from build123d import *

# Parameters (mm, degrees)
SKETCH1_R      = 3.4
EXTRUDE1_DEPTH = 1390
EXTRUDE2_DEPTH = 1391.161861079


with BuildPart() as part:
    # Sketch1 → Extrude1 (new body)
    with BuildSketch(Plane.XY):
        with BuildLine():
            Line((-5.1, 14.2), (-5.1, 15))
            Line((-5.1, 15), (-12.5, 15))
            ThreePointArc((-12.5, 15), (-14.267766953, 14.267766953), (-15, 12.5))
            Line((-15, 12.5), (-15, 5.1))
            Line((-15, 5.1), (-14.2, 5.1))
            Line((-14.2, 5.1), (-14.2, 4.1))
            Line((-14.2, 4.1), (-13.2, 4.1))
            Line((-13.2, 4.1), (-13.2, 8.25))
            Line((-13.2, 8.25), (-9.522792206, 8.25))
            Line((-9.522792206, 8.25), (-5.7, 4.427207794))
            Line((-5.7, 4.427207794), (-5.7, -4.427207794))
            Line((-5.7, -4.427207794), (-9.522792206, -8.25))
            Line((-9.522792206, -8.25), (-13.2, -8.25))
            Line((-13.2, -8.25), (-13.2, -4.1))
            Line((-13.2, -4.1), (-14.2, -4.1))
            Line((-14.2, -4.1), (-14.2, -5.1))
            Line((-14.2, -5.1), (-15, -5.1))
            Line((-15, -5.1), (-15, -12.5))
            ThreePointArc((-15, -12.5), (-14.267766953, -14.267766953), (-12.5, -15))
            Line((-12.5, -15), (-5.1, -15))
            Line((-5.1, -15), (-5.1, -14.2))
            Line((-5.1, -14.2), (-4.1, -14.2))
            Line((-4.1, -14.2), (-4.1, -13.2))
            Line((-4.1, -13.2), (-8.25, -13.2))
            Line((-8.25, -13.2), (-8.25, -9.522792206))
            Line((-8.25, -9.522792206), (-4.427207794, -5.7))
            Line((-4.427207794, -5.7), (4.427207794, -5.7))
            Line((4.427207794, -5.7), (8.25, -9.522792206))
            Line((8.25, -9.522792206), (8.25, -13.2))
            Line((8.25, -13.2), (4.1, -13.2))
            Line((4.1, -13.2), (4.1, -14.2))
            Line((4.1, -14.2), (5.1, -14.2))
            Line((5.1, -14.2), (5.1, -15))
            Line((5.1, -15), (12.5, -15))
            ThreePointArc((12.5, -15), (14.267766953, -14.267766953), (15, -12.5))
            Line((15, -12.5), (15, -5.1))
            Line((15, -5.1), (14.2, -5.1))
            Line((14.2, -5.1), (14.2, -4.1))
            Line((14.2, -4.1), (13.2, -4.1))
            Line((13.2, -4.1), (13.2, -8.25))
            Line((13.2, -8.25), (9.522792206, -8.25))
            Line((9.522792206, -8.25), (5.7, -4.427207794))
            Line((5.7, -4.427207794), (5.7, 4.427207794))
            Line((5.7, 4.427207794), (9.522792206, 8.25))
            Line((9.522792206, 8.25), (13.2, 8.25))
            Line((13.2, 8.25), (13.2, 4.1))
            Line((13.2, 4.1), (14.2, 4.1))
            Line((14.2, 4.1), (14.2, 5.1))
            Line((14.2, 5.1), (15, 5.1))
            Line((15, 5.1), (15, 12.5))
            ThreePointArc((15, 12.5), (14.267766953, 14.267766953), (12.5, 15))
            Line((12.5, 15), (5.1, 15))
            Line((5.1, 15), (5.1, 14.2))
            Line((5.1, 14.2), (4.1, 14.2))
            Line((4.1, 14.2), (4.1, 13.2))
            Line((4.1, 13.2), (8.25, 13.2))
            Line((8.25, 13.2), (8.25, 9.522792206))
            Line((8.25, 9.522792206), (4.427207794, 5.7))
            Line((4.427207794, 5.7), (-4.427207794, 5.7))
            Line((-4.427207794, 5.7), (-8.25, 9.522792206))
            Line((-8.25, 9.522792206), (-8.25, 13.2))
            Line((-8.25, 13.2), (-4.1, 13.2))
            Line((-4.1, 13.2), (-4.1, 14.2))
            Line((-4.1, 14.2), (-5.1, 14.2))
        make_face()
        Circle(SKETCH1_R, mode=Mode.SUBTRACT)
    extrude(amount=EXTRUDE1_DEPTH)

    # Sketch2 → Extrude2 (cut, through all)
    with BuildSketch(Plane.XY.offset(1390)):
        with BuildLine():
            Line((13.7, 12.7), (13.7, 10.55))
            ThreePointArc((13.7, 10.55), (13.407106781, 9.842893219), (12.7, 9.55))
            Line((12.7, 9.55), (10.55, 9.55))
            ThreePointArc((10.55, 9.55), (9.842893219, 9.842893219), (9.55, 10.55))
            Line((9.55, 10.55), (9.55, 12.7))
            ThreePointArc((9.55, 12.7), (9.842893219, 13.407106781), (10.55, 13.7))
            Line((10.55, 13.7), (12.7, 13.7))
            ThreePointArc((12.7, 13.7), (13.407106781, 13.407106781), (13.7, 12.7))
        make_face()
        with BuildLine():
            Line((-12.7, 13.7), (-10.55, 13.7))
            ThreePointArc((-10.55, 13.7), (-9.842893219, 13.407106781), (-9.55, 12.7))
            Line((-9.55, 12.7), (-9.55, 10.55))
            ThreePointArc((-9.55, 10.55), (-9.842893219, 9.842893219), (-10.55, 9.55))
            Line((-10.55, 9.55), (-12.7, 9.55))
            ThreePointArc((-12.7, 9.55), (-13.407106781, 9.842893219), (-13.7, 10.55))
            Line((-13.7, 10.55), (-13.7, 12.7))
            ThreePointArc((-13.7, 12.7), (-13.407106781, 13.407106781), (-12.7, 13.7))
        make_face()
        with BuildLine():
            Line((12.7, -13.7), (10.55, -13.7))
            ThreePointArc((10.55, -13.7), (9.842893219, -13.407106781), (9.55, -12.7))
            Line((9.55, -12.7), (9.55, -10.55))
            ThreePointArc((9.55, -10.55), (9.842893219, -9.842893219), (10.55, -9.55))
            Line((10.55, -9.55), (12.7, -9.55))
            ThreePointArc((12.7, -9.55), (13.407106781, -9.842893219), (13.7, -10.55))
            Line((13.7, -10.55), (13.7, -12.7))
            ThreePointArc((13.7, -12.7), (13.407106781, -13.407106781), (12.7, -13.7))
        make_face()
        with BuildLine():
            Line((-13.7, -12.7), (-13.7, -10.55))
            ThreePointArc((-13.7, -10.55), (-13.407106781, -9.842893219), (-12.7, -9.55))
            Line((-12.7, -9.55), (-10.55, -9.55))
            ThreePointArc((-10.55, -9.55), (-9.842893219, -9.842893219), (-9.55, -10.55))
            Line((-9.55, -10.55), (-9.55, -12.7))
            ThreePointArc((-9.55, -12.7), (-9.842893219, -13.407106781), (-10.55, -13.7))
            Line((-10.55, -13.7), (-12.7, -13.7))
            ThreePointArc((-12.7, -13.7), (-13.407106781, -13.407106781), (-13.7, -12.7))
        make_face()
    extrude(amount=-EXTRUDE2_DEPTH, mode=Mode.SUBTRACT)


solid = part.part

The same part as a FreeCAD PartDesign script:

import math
import FreeCAD as App
import Part
import Sketcher
from FreeCAD import Vector

doc = App.newDocument("Part")
body = doc.addObject("PartDesign::Body", "Body")

sketch1 = body.newObject("Sketcher::SketchObject", "Sketch")
sketch1.AttachmentSupport = (doc.getObject("XY_Plane"), [""])
sketch1.MapMode = "FlatFace"
sketch1.addGeometry(Part.LineSegment(Vector(-5.1, 14.2, 0), Vector(-5.1, 15, 0)), False)
sketch1.addGeometry(Part.LineSegment(Vector(-5.1, 15, 0), Vector(-12.5, 15, 0)), False)
sketch1.addGeometry(Part.ArcOfCircle(Part.Circle(Vector(-12.5, 12.5, 0), Vector(0, 0, 1), 2.5), math.radians(90), math.radians(180)), False)
sketch1.addGeometry(Part.LineSegment(Vector(-15, 12.5, 0), Vector(-15, 5.1, 0)), False)
sketch1.addGeometry(Part.LineSegment(Vector(-15, 5.1, 0), Vector(-14.2, 5.1, 0)), False)
sketch1.addGeometry(Part.LineSegment(Vector(-14.2, 5.1, 0), Vector(-14.2, 4.1, 0)), False)
sketch1.addGeometry(Part.LineSegment(Vector(-14.2, 4.1, 0), Vector(-13.2, 4.1, 0)), False)
sketch1.addGeometry(Part.LineSegment(Vector(-13.2, 4.1, 0), Vector(-13.2, 8.2, 0)), False)
sketch1.addGeometry(Part.LineSegment(Vector(-13.2, 8.2, 0), Vector(-9.5, 8.2, 0)), False)
sketch1.addGeometry(Part.LineSegment(Vector(-9.5, 8.2, 0), Vector(-5.7, 4.4, 0)), False)
sketch1.addGeometry(Part.LineSegment(Vector(-5.7, 4.4, 0), Vector(-5.7, -4.4, 0)), False)
sketch1.addGeometry(Part.LineSegment(Vector(-5.7, -4.4, 0), Vector(-9.5, -8.2, 0)), False)
sketch1.addGeometry(Part.LineSegment(Vector(-9.5, -8.2, 0), Vector(-13.2, -8.2, 0)), False)
sketch1.addGeometry(Part.LineSegment(Vector(-13.2, -8.2, 0), Vector(-13.2, -4.1, 0)), False)
sketch1.addGeometry(Part.LineSegment(Vector(-13.2, -4.1, 0), Vector(-14.2, -4.1, 0)), False)
sketch1.addGeometry(Part.LineSegment(Vector(-14.2, -4.1, 0), Vector(-14.2, -5.1, 0)), False)
sketch1.addGeometry(Part.LineSegment(Vector(-14.2, -5.1, 0), Vector(-15, -5.1, 0)), False)
sketch1.addGeometry(Part.LineSegment(Vector(-15, -5.1, 0), Vector(-15, -12.5, 0)), False)
sketch1.addGeometry(Part.ArcOfCircle(Part.Circle(Vector(-12.5, -12.5, 0), Vector(0, 0, 1), 2.5), math.radians(180), math.radians(270)), False)
sketch1.addGeometry(Part.LineSegment(Vector(-12.5, -15, 0), Vector(-5.1, -15, 0)), False)
sketch1.addGeometry(Part.LineSegment(Vector(-5.1, -15, 0), Vector(-5.1, -14.2, 0)), False)
sketch1.addGeometry(Part.LineSegment(Vector(-5.1, -14.2, 0), Vector(-4.1, -14.2, 0)), False)
sketch1.addGeometry(Part.LineSegment(Vector(-4.1, -14.2, 0), Vector(-4.1, -13.2, 0)), False)
sketch1.addGeometry(Part.LineSegment(Vector(-4.1, -13.2, 0), Vector(-8.2, -13.2, 0)), False)
sketch1.addGeometry(Part.LineSegment(Vector(-8.2, -13.2, 0), Vector(-8.2, -9.5, 0)), False)
sketch1.addGeometry(Part.LineSegment(Vector(-8.2, -9.5, 0), Vector(-4.4, -5.7, 0)), False)
sketch1.addGeometry(Part.LineSegment(Vector(-4.4, -5.7, 0), Vector(4.4, -5.7, 0)), False)
sketch1.addGeometry(Part.LineSegment(Vector(4.4, -5.7, 0), Vector(8.2, -9.5, 0)), False)
sketch1.addGeometry(Part.LineSegment(Vector(8.2, -9.5, 0), Vector(8.2, -13.2, 0)), False)
sketch1.addGeometry(Part.LineSegment(Vector(8.2, -13.2, 0), Vector(4.1, -13.2, 0)), False)
sketch1.addGeometry(Part.LineSegment(Vector(4.1, -13.2, 0), Vector(4.1, -14.2, 0)), False)
sketch1.addGeometry(Part.LineSegment(Vector(4.1, -14.2, 0), Vector(5.1, -14.2, 0)), False)
sketch1.addGeometry(Part.LineSegment(Vector(5.1, -14.2, 0), Vector(5.1, -15, 0)), False)
sketch1.addGeometry(Part.LineSegment(Vector(5.1, -15, 0), Vector(12.5, -15, 0)), False)
sketch1.addGeometry(Part.ArcOfCircle(Part.Circle(Vector(12.5, -12.5, 0), Vector(0, 0, 1), 2.5), math.radians(-90), math.radians(0)), False)
sketch1.addGeometry(Part.LineSegment(Vector(15, -12.5, 0), Vector(15, -5.1, 0)), False)
sketch1.addGeometry(Part.LineSegment(Vector(15, -5.1, 0), Vector(14.2, -5.1, 0)), False)
sketch1.addGeometry(Part.LineSegment(Vector(14.2, -5.1, 0), Vector(14.2, -4.1, 0)), False)
sketch1.addGeometry(Part.LineSegment(Vector(14.2, -4.1, 0), Vector(13.2, -4.1, 0)), False)
sketch1.addGeometry(Part.LineSegment(Vector(13.2, -4.1, 0), Vector(13.2, -8.2, 0)), False)
sketch1.addGeometry(Part.LineSegment(Vector(13.2, -8.2, 0), Vector(9.5, -8.2, 0)), False)
sketch1.addGeometry(Part.LineSegment(Vector(9.5, -8.2, 0), Vector(5.7, -4.4, 0)), False)
sketch1.addGeometry(Part.LineSegment(Vector(5.7, -4.4, 0), Vector(5.7, 4.4, 0)), False)
sketch1.addGeometry(Part.LineSegment(Vector(5.7, 4.4, 0), Vector(9.5, 8.2, 0)), False)
sketch1.addGeometry(Part.LineSegment(Vector(9.5, 8.2, 0), Vector(13.2, 8.2, 0)), False)
sketch1.addGeometry(Part.LineSegment(Vector(13.2, 8.2, 0), Vector(13.2, 4.1, 0)), False)
sketch1.addGeometry(Part.LineSegment(Vector(13.2, 4.1, 0), Vector(14.2, 4.1, 0)), False)
sketch1.addGeometry(Part.LineSegment(Vector(14.2, 4.1, 0), Vector(14.2, 5.1, 0)), False)
sketch1.addGeometry(Part.LineSegment(Vector(14.2, 5.1, 0), Vector(15, 5.1, 0)), False)
sketch1.addGeometry(Part.LineSegment(Vector(15, 5.1, 0), Vector(15, 12.5, 0)), False)
sketch1.addGeometry(Part.ArcOfCircle(Part.Circle(Vector(12.5, 12.5, 0), Vector(0, 0, 1), 2.5), math.radians(0), math.radians(90)), False)
sketch1.addGeometry(Part.LineSegment(Vector(12.5, 15, 0), Vector(5.1, 15, 0)), False)
sketch1.addGeometry(Part.LineSegment(Vector(5.1, 15, 0), Vector(5.1, 14.2, 0)), False)
sketch1.addGeometry(Part.LineSegment(Vector(5.1, 14.2, 0), Vector(4.1, 14.2, 0)), False)
sketch1.addGeometry(Part.LineSegment(Vector(4.1, 14.2, 0), Vector(4.1, 13.2, 0)), False)
sketch1.addGeometry(Part.LineSegment(Vector(4.1, 13.2, 0), Vector(8.2, 13.2, 0)), False)
sketch1.addGeometry(Part.LineSegment(Vector(8.2, 13.2, 0), Vector(8.2, 9.5, 0)), False)
sketch1.addGeometry(Part.LineSegment(Vector(8.2, 9.5, 0), Vector(4.4, 5.7, 0)), False)
sketch1.addGeometry(Part.LineSegment(Vector(4.4, 5.7, 0), Vector(-4.4, 5.7, 0)), False)
sketch1.addGeometry(Part.LineSegment(Vector(-4.4, 5.7, 0), Vector(-8.2, 9.5, 0)), False)
sketch1.addGeometry(Part.LineSegment(Vector(-8.2, 9.5, 0), Vector(-8.2, 13.2, 0)), False)
sketch1.addGeometry(Part.LineSegment(Vector(-8.2, 13.2, 0), Vector(-4.1, 13.2, 0)), False)
sketch1.addGeometry(Part.LineSegment(Vector(-4.1, 13.2, 0), Vector(-4.1, 14.2, 0)), False)
sketch1.addGeometry(Part.LineSegment(Vector(-4.1, 14.2, 0), Vector(-5.1, 14.2, 0)), False)
sketch1.addGeometry(Part.Circle(Vector(0, 0, 0), Vector(0, 0, 1), 3.4), False)
sketch1.addConstraint(Sketcher.Constraint("Coincident", 0, 2, 1, 1))
sketch1.addConstraint(Sketcher.Constraint("Tangent", 1, 2, 2, 1))
sketch1.addConstraint(Sketcher.Constraint("Tangent", 2, 2, 3, 1))
sketch1.addConstraint(Sketcher.Constraint("Coincident", 3, 2, 4, 1))
sketch1.addConstraint(Sketcher.Constraint("Coincident", 4, 2, 5, 1))
sketch1.addConstraint(Sketcher.Constraint("Coincident", 5, 2, 6, 1))
sketch1.addConstraint(Sketcher.Constraint("Coincident", 6, 2, 7, 1))
sketch1.addConstraint(Sketcher.Constraint("Coincident", 7, 2, 8, 1))
sketch1.addConstraint(Sketcher.Constraint("Coincident", 8, 2, 9, 1))
sketch1.addConstraint(Sketcher.Constraint("Coincident", 9, 2, 10, 1))
sketch1.addConstraint(Sketcher.Constraint("Coincident", 10, 2, 11, 1))
sketch1.addConstraint(Sketcher.Constraint("Coincident", 11, 2, 12, 1))
sketch1.addConstraint(Sketcher.Constraint("Coincident", 12, 2, 13, 1))
sketch1.addConstraint(Sketcher.Constraint("Coincident", 13, 2, 14, 1))
sketch1.addConstraint(Sketcher.Constraint("Coincident", 14, 2, 15, 1))
sketch1.addConstraint(Sketcher.Constraint("Coincident", 15, 2, 16, 1))
sketch1.addConstraint(Sketcher.Constraint("Coincident", 16, 2, 17, 1))
sketch1.addConstraint(Sketcher.Constraint("Tangent", 17, 2, 18, 1))
sketch1.addConstraint(Sketcher.Constraint("Tangent", 18, 2, 19, 1))
sketch1.addConstraint(Sketcher.Constraint("Coincident", 19, 2, 20, 1))
sketch1.addConstraint(Sketcher.Constraint("Coincident", 20, 2, 21, 1))
sketch1.addConstraint(Sketcher.Constraint("Coincident", 21, 2, 22, 1))
sketch1.addConstraint(Sketcher.Constraint("Coincident", 22, 2, 23, 1))
sketch1.addConstraint(Sketcher.Constraint("Coincident", 23, 2, 24, 1))
sketch1.addConstraint(Sketcher.Constraint("Coincident", 24, 2, 25, 1))
sketch1.addConstraint(Sketcher.Constraint("Coincident", 25, 2, 26, 1))
sketch1.addConstraint(Sketcher.Constraint("Coincident", 26, 2, 27, 1))
sketch1.addConstraint(Sketcher.Constraint("Coincident", 27, 2, 28, 1))
sketch1.addConstraint(Sketcher.Constraint("Coincident", 28, 2, 29, 1))
sketch1.addConstraint(Sketcher.Constraint("Coincident", 29, 2, 30, 1))
sketch1.addConstraint(Sketcher.Constraint("Coincident", 30, 2, 31, 1))
sketch1.addConstraint(Sketcher.Constraint("Coincident", 31, 2, 32, 1))
sketch1.addConstraint(Sketcher.Constraint("Coincident", 32, 2, 33, 1))
sketch1.addConstraint(Sketcher.Constraint("Tangent", 33, 2, 34, 1))
sketch1.addConstraint(Sketcher.Constraint("Tangent", 34, 2, 35, 1))
sketch1.addConstraint(Sketcher.Constraint("Coincident", 35, 2, 36, 1))
sketch1.addConstraint(Sketcher.Constraint("Coincident", 36, 2, 37, 1))
sketch1.addConstraint(Sketcher.Constraint("Coincident", 37, 2, 38, 1))
sketch1.addConstraint(Sketcher.Constraint("Coincident", 38, 2, 39, 1))
sketch1.addConstraint(Sketcher.Constraint("Coincident", 39, 2, 40, 1))
sketch1.addConstraint(Sketcher.Constraint("Coincident", 40, 2, 41, 1))
sketch1.addConstraint(Sketcher.Constraint("Coincident", 41, 2, 42, 1))
sketch1.addConstraint(Sketcher.Constraint("Coincident", 42, 2, 43, 1))
sketch1.addConstraint(Sketcher.Constraint("Coincident", 43, 2, 44, 1))
sketch1.addConstraint(Sketcher.Constraint("Coincident", 44, 2, 45, 1))
sketch1.addConstraint(Sketcher.Constraint("Coincident", 45, 2, 46, 1))
sketch1.addConstraint(Sketcher.Constraint("Coincident", 46, 2, 47, 1))
sketch1.addConstraint(Sketcher.Constraint("Coincident", 47, 2, 48, 1))
sketch1.addConstraint(Sketcher.Constraint("Coincident", 48, 2, 49, 1))
sketch1.addConstraint(Sketcher.Constraint("Tangent", 49, 2, 50, 1))
sketch1.addConstraint(Sketcher.Constraint("Tangent", 50, 2, 51, 1))
sketch1.addConstraint(Sketcher.Constraint("Coincident", 51, 2, 52, 1))
sketch1.addConstraint(Sketcher.Constraint("Coincident", 52, 2, 53, 1))
sketch1.addConstraint(Sketcher.Constraint("Coincident", 53, 2, 54, 1))
sketch1.addConstraint(Sketcher.Constraint("Coincident", 54, 2, 55, 1))
sketch1.addConstraint(Sketcher.Constraint("Coincident", 55, 2, 56, 1))
sketch1.addConstraint(Sketcher.Constraint("Coincident", 56, 2, 57, 1))
sketch1.addConstraint(Sketcher.Constraint("Coincident", 57, 2, 58, 1))
sketch1.addConstraint(Sketcher.Constraint("Coincident", 58, 2, 59, 1))
sketch1.addConstraint(Sketcher.Constraint("Coincident", 59, 2, 60, 1))
sketch1.addConstraint(Sketcher.Constraint("Coincident", 60, 2, 61, 1))
sketch1.addConstraint(Sketcher.Constraint("Coincident", 61, 2, 62, 1))
sketch1.addConstraint(Sketcher.Constraint("Coincident", 62, 2, 63, 1))
sketch1.addConstraint(Sketcher.Constraint("Coincident", 63, 2, 0, 1))
sketch1.addConstraint(Sketcher.Constraint("Vertical", 0))
sketch1.addConstraint(Sketcher.Constraint("Horizontal", 1))
sketch1.addConstraint(Sketcher.Constraint("Vertical", 3))
sketch1.addConstraint(Sketcher.Constraint("Horizontal", 4))
sketch1.addConstraint(Sketcher.Constraint("Vertical", 5))
sketch1.addConstraint(Sketcher.Constraint("Horizontal", 6))
sketch1.addConstraint(Sketcher.Constraint("Vertical", 7))
sketch1.addConstraint(Sketcher.Constraint("Horizontal", 8))
sketch1.addConstraint(Sketcher.Constraint("Vertical", 10))
sketch1.addConstraint(Sketcher.Constraint("Horizontal", 12))
sketch1.addConstraint(Sketcher.Constraint("Vertical", 13))
sketch1.addConstraint(Sketcher.Constraint("Horizontal", 14))
sketch1.addConstraint(Sketcher.Constraint("Vertical", 15))
sketch1.addConstraint(Sketcher.Constraint("Horizontal", 16))
sketch1.addConstraint(Sketcher.Constraint("Vertical", 17))
sketch1.addConstraint(Sketcher.Constraint("Horizontal", 19))
sketch1.addConstraint(Sketcher.Constraint("Vertical", 20))
sketch1.addConstraint(Sketcher.Constraint("Horizontal", 21))
sketch1.addConstraint(Sketcher.Constraint("Vertical", 22))
sketch1.addConstraint(Sketcher.Constraint("Horizontal", 23))
sketch1.addConstraint(Sketcher.Constraint("Vertical", 24))
sketch1.addConstraint(Sketcher.Constraint("Horizontal", 26))
sketch1.addConstraint(Sketcher.Constraint("Vertical", 28))
sketch1.addConstraint(Sketcher.Constraint("Horizontal", 29))
sketch1.addConstraint(Sketcher.Constraint("Vertical", 30))
sketch1.addConstraint(Sketcher.Constraint("Horizontal", 31))
sketch1.addConstraint(Sketcher.Constraint("Vertical", 32))
sketch1.addConstraint(Sketcher.Constraint("Horizontal", 33))
sketch1.addConstraint(Sketcher.Constraint("Vertical", 35))
sketch1.addConstraint(Sketcher.Constraint("Horizontal", 36))
sketch1.addConstraint(Sketcher.Constraint("Vertical", 37))
sketch1.addConstraint(Sketcher.Constraint("Horizontal", 38))
sketch1.addConstraint(Sketcher.Constraint("Vertical", 39))
sketch1.addConstraint(Sketcher.Constraint("Horizontal", 40))
sketch1.addConstraint(Sketcher.Constraint("Vertical", 42))
sketch1.addConstraint(Sketcher.Constraint("Horizontal", 44))
sketch1.addConstraint(Sketcher.Constraint("Vertical", 45))
sketch1.addConstraint(Sketcher.Constraint("Horizontal", 46))
sketch1.addConstraint(Sketcher.Constraint("Vertical", 47))
sketch1.addConstraint(Sketcher.Constraint("Horizontal", 48))
sketch1.addConstraint(Sketcher.Constraint("Vertical", 49))
sketch1.addConstraint(Sketcher.Constraint("Horizontal", 51))
sketch1.addConstraint(Sketcher.Constraint("Vertical", 52))
sketch1.addConstraint(Sketcher.Constraint("Horizontal", 53))
sketch1.addConstraint(Sketcher.Constraint("Vertical", 54))
sketch1.addConstraint(Sketcher.Constraint("Horizontal", 55))
sketch1.addConstraint(Sketcher.Constraint("Vertical", 56))
sketch1.addConstraint(Sketcher.Constraint("Horizontal", 58))
sketch1.addConstraint(Sketcher.Constraint("Vertical", 60))
sketch1.addConstraint(Sketcher.Constraint("Horizontal", 61))
sketch1.addConstraint(Sketcher.Constraint("Vertical", 62))
sketch1.addConstraint(Sketcher.Constraint("Horizontal", 63))
sketch1.addConstraint(Sketcher.Constraint("Coincident", 64, 3, -1, 1))
sketch1.addConstraint(Sketcher.Constraint("Equal", 2, 18))
sketch1.addConstraint(Sketcher.Constraint("Equal", 18, 34))
sketch1.addConstraint(Sketcher.Constraint("Equal", 34, 50))
sketch1.addConstraint(Sketcher.Constraint("Symmetric", 2, 3, 34, 3, -1, 1))
sketch1.addConstraint(Sketcher.Constraint("Symmetric", 18, 3, 50, 3, -1, 1))
sketch1.addConstraint(Sketcher.Constraint("Symmetric", 4, 2, 36, 2, -1, 1))
sketch1.addConstraint(Sketcher.Constraint("Symmetric", 6, 2, 38, 2, -1, 1))
sketch1.addConstraint(Sketcher.Constraint("Symmetric", 8, 2, 40, 2, -1, 1))
sketch1.addConstraint(Sketcher.Constraint("Symmetric", 9, 2, 41, 2, -1, 1))
sketch1.addConstraint(Sketcher.Constraint("Symmetric", 11, 2, 43, 2, -1, 1))
sketch1.addConstraint(Sketcher.Constraint("Symmetric", 13, 2, 45, 2, -1, 1))
sketch1.addConstraint(Sketcher.Constraint("Symmetric", 15, 2, 47, 2, -1, 1))
sketch1.addConstraint(Sketcher.Constraint("Symmetric", 20, 2, 52, 2, -1, 1))
sketch1.addConstraint(Sketcher.Constraint("Symmetric", 22, 2, 54, 2, -1, 1))
sketch1.addConstraint(Sketcher.Constraint("Symmetric", 24, 2, 56, 2, -1, 1))
sketch1.addConstraint(Sketcher.Constraint("Symmetric", 25, 2, 57, 2, -1, 1))
sketch1.addConstraint(Sketcher.Constraint("Symmetric", 27, 2, 59, 2, -1, 1))
sketch1.addConstraint(Sketcher.Constraint("Symmetric", 29, 2, 61, 2, -1, 1))
sketch1.addConstraint(Sketcher.Constraint("Symmetric", 31, 2, 63, 2, -1, 1))
sketch1.addConstraint(Sketcher.Constraint("Symmetric", 18, 3, 34, 3, -2))
sketch1.addConstraint(Sketcher.Constraint("Symmetric", 24, 2, 27, 2, -2))
sketch1.addConstraint(Sketcher.Constraint("Symmetric", 22, 2, 29, 2, -2))
sketch1.addConstraint(Sketcher.Constraint("Symmetric", 20, 2, 31, 2, -2))
sketch1.addConstraint(Sketcher.Constraint("Symmetric", 15, 2, 36, 2, -2))
sketch1.addConstraint(Sketcher.Constraint("Symmetric", 13, 2, 38, 2, -2))
sketch1.addConstraint(Sketcher.Constraint("Symmetric", 11, 2, 40, 2, -2))
sketch1.addConstraint(Sketcher.Constraint("Perpendicular", 9, 11))
sketch1.addConstraint(Sketcher.Constraint("Parallel", 11, 25))
sketch1.addConstraint(Sketcher.Constraint("Perpendicular", 25, 27))
sketch1.addConstraint(Sketcher.Constraint("Perpendicular", 41, 43))
sketch1.addConstraint(Sketcher.Constraint("Perpendicular", 57, 59))
sketch1.addConstraint(Sketcher.Constraint("Horizontal", 10, 2, 41, 2))
sketch1.addConstraint(Sketcher.Constraint("Equal", 14, 21))
sketch1.addConstraint(Sketcher.Constraint("Equal", 48, 0))
sketch1.addConstraint(Sketcher.Constraint("Equal", 51, 3))
sketch1.addConstraint(Sketcher.Constraint("Equal", 63, 5))
sketch1.addConstraint(Sketcher.Constraint("Equal", 61, 7))
sketch1.addConstraint(Sketcher.Constraint("Equal", 58, 10))
sketch1.addConstraint(Sketcher.Constraint("Equal", 15, 22))
sketch1.addConstraint(Sketcher.Constraint("Equal", 44, 24))
sketch1.addConstraint(Sketcher.Constraint("Equal", 11, 25))
sketch1.addConstraint(Sketcher.Constraint("Diameter", 64, 6.8))
sketch1.addConstraint(Sketcher.Constraint("Radius", 2, 2.5))
sketch1.addConstraint(Sketcher.Constraint("DistanceX", 6, 1, 6, 2, 1.0))
sketch1.addConstraint(Sketcher.Constraint("DistanceX", 1, 2, 1, 1, 7.4))
sketch1.addConstraint(Sketcher.Constraint("DistanceX", 4, 1, 4, 2, 0.8))
sketch1.addConstraint(Sketcher.Constraint("DistanceY", -1, 1, 0, 2, 15.0))
sketch1.addConstraint(Sketcher.Constraint("DistanceX", 23, 2, 23, 1, 4.15))
sketch1.addConstraint(Sketcher.Constraint("DistanceX", 9, 2, -1, 1, 5.7))
sketch1.addConstraint(Sketcher.Constraint("DistanceX", 8, 1, 8, 2, 3.677208))
pad1 = body.newObject("PartDesign::Pad", "Pad")
pad1.Profile = sketch1
pad1.Length = 1390

sketch2 = body.newObject("Sketcher::SketchObject", "Sketch001")
sketch2.AttachmentSupport = (doc.getObject("XY_Plane"), [""])
sketch2.MapMode = "FlatFace"
sketch2.AttachmentOffset = App.Placement(Vector(0, 0, 1390), App.Rotation())
sketch2.addGeometry(Part.LineSegment(Vector(13.7, 10.6, 0), Vector(13.7, 12.7, 0)), False)
sketch2.addGeometry(Part.ArcOfCircle(Part.Circle(Vector(12.7, 12.7, 0), Vector(0, 0, 1), 1), math.radians(0), math.radians(90)), False)
sketch2.addGeometry(Part.LineSegment(Vector(12.7, 13.7, 0), Vector(10.6, 13.7, 0)), False)
sketch2.addGeometry(Part.ArcOfCircle(Part.Circle(Vector(10.6, 12.7, 0), Vector(0, 0, 1), 1), math.radians(90), math.radians(180)), False)
sketch2.addGeometry(Part.LineSegment(Vector(9.6, 12.7, 0), Vector(9.6, 10.6, 0)), False)
sketch2.addGeometry(Part.ArcOfCircle(Part.Circle(Vector(10.6, 10.6, 0), Vector(0, 0, 1), 1), math.radians(-180), math.radians(-90)), False)
sketch2.addGeometry(Part.LineSegment(Vector(10.6, 9.6, 0), Vector(12.7, 9.6, 0)), False)
sketch2.addGeometry(Part.ArcOfCircle(Part.Circle(Vector(12.7, 10.6, 0), Vector(0, 0, 1), 1), math.radians(-90), math.radians(0)), False)
sketch2.addGeometry(Part.LineSegment(Vector(-10.6, 13.7, 0), Vector(-12.7, 13.7, 0)), False)
sketch2.addGeometry(Part.ArcOfCircle(Part.Circle(Vector(-12.7, 12.7, 0), Vector(0, 0, 1), 1), math.radians(90), math.radians(180)), False)
sketch2.addGeometry(Part.LineSegment(Vector(-13.7, 12.7, 0), Vector(-13.7, 10.6, 0)), False)
sketch2.addGeometry(Part.ArcOfCircle(Part.Circle(Vector(-12.7, 10.6, 0), Vector(0, 0, 1), 1), math.radians(-180), math.radians(-90)), False)
sketch2.addGeometry(Part.LineSegment(Vector(-12.7, 9.6, 0), Vector(-10.6, 9.6, 0)), False)
sketch2.addGeometry(Part.ArcOfCircle(Part.Circle(Vector(-10.6, 10.6, 0), Vector(0, 0, 1), 1), math.radians(-90), math.radians(0)), False)
sketch2.addGeometry(Part.LineSegment(Vector(-9.6, 10.6, 0), Vector(-9.6, 12.7, 0)), False)
sketch2.addGeometry(Part.ArcOfCircle(Part.Circle(Vector(-10.6, 12.7, 0), Vector(0, 0, 1), 1), math.radians(0), math.radians(90)), False)
sketch2.addGeometry(Part.LineSegment(Vector(10.6, -13.7, 0), Vector(12.7, -13.7, 0)), False)
sketch2.addGeometry(Part.ArcOfCircle(Part.Circle(Vector(12.7, -12.7, 0), Vector(0, 0, 1), 1), math.radians(-90), math.radians(0)), False)
sketch2.addGeometry(Part.LineSegment(Vector(13.7, -12.7, 0), Vector(13.7, -10.6, 0)), False)
sketch2.addGeometry(Part.ArcOfCircle(Part.Circle(Vector(12.7, -10.6, 0), Vector(0, 0, 1), 1), math.radians(0), math.radians(90)), False)
sketch2.addGeometry(Part.LineSegment(Vector(12.7, -9.6, 0), Vector(10.6, -9.6, 0)), False)
sketch2.addGeometry(Part.ArcOfCircle(Part.Circle(Vector(10.6, -10.6, 0), Vector(0, 0, 1), 1), math.radians(90), math.radians(180)), False)
sketch2.addGeometry(Part.LineSegment(Vector(9.6, -10.6, 0), Vector(9.6, -12.7, 0)), False)
sketch2.addGeometry(Part.ArcOfCircle(Part.Circle(Vector(10.6, -12.7, 0), Vector(0, 0, 1), 1), math.radians(-180), math.radians(-90)), False)
sketch2.addGeometry(Part.LineSegment(Vector(-13.7, -10.6, 0), Vector(-13.7, -12.7, 0)), False)
sketch2.addGeometry(Part.ArcOfCircle(Part.Circle(Vector(-12.7, -12.7, 0), Vector(0, 0, 1), 1), math.radians(-180), math.radians(-90)), False)
sketch2.addGeometry(Part.LineSegment(Vector(-12.7, -13.7, 0), Vector(-10.6, -13.7, 0)), False)
sketch2.addGeometry(Part.ArcOfCircle(Part.Circle(Vector(-10.6, -12.7, 0), Vector(0, 0, 1), 1), math.radians(-90), math.radians(0)), False)
sketch2.addGeometry(Part.LineSegment(Vector(-9.6, -12.7, 0), Vector(-9.6, -10.6, 0)), False)
sketch2.addGeometry(Part.ArcOfCircle(Part.Circle(Vector(-10.6, -10.6, 0), Vector(0, 0, 1), 1), math.radians(0), math.radians(90)), False)
sketch2.addGeometry(Part.LineSegment(Vector(-10.6, -9.6, 0), Vector(-12.7, -9.6, 0)), False)
sketch2.addGeometry(Part.ArcOfCircle(Part.Circle(Vector(-12.7, -10.6, 0), Vector(0, 0, 1), 1), math.radians(90), math.radians(180)), False)
sketch2.addConstraint(Sketcher.Constraint("Tangent", 0, 2, 1, 1))
sketch2.addConstraint(Sketcher.Constraint("Tangent", 1, 2, 2, 1))
sketch2.addConstraint(Sketcher.Constraint("Tangent", 2, 2, 3, 1))
sketch2.addConstraint(Sketcher.Constraint("Tangent", 3, 2, 4, 1))
sketch2.addConstraint(Sketcher.Constraint("Tangent", 4, 2, 5, 1))
sketch2.addConstraint(Sketcher.Constraint("Tangent", 5, 2, 6, 1))
sketch2.addConstraint(Sketcher.Constraint("Tangent", 6, 2, 7, 1))
sketch2.addConstraint(Sketcher.Constraint("Tangent", 7, 2, 0, 1))
sketch2.addConstraint(Sketcher.Constraint("Tangent", 8, 2, 9, 1))
sketch2.addConstraint(Sketcher.Constraint("Tangent", 9, 2, 10, 1))
sketch2.addConstraint(Sketcher.Constraint("Tangent", 10, 2, 11, 1))
sketch2.addConstraint(Sketcher.Constraint("Tangent", 11, 2, 12, 1))
sketch2.addConstraint(Sketcher.Constraint("Tangent", 12, 2, 13, 1))
sketch2.addConstraint(Sketcher.Constraint("Tangent", 13, 2, 14, 1))
sketch2.addConstraint(Sketcher.Constraint("Tangent", 14, 2, 15, 1))
sketch2.addConstraint(Sketcher.Constraint("Tangent", 15, 2, 8, 1))
sketch2.addConstraint(Sketcher.Constraint("Tangent", 16, 2, 17, 1))
sketch2.addConstraint(Sketcher.Constraint("Tangent", 17, 2, 18, 1))
sketch2.addConstraint(Sketcher.Constraint("Tangent", 18, 2, 19, 1))
sketch2.addConstraint(Sketcher.Constraint("Tangent", 19, 2, 20, 1))
sketch2.addConstraint(Sketcher.Constraint("Tangent", 20, 2, 21, 1))
sketch2.addConstraint(Sketcher.Constraint("Tangent", 21, 2, 22, 1))
sketch2.addConstraint(Sketcher.Constraint("Tangent", 22, 2, 23, 1))
sketch2.addConstraint(Sketcher.Constraint("Tangent", 23, 2, 16, 1))
sketch2.addConstraint(Sketcher.Constraint("Tangent", 24, 2, 25, 1))
sketch2.addConstraint(Sketcher.Constraint("Tangent", 25, 2, 26, 1))
sketch2.addConstraint(Sketcher.Constraint("Tangent", 26, 2, 27, 1))
sketch2.addConstraint(Sketcher.Constraint("Tangent", 27, 2, 28, 1))
sketch2.addConstraint(Sketcher.Constraint("Tangent", 28, 2, 29, 1))
sketch2.addConstraint(Sketcher.Constraint("Tangent", 29, 2, 30, 1))
sketch2.addConstraint(Sketcher.Constraint("Tangent", 30, 2, 31, 1))
sketch2.addConstraint(Sketcher.Constraint("Tangent", 31, 2, 24, 1))
sketch2.addConstraint(Sketcher.Constraint("Vertical", 0))
sketch2.addConstraint(Sketcher.Constraint("Horizontal", 2))
sketch2.addConstraint(Sketcher.Constraint("Vertical", 4))
sketch2.addConstraint(Sketcher.Constraint("Horizontal", 6))
sketch2.addConstraint(Sketcher.Constraint("Horizontal", 8))
sketch2.addConstraint(Sketcher.Constraint("Vertical", 10))
sketch2.addConstraint(Sketcher.Constraint("Horizontal", 12))
sketch2.addConstraint(Sketcher.Constraint("Vertical", 14))
sketch2.addConstraint(Sketcher.Constraint("Horizontal", 16))
sketch2.addConstraint(Sketcher.Constraint("Vertical", 18))
sketch2.addConstraint(Sketcher.Constraint("Horizontal", 20))
sketch2.addConstraint(Sketcher.Constraint("Vertical", 22))
sketch2.addConstraint(Sketcher.Constraint("Vertical", 24))
sketch2.addConstraint(Sketcher.Constraint("Horizontal", 26))
sketch2.addConstraint(Sketcher.Constraint("Vertical", 28))
sketch2.addConstraint(Sketcher.Constraint("Horizontal", 30))
sketch2.addConstraint(Sketcher.Constraint("Equal", 1, 3))
sketch2.addConstraint(Sketcher.Constraint("Equal", 3, 5))
sketch2.addConstraint(Sketcher.Constraint("Equal", 5, 7))
sketch2.addConstraint(Sketcher.Constraint("Equal", 7, 9))
sketch2.addConstraint(Sketcher.Constraint("Equal", 9, 11))
sketch2.addConstraint(Sketcher.Constraint("Equal", 11, 13))
sketch2.addConstraint(Sketcher.Constraint("Equal", 13, 15))
sketch2.addConstraint(Sketcher.Constraint("Equal", 15, 17))
sketch2.addConstraint(Sketcher.Constraint("Equal", 17, 19))
sketch2.addConstraint(Sketcher.Constraint("Equal", 19, 21))
sketch2.addConstraint(Sketcher.Constraint("Equal", 21, 23))
sketch2.addConstraint(Sketcher.Constraint("Equal", 23, 25))
sketch2.addConstraint(Sketcher.Constraint("Equal", 25, 27))
sketch2.addConstraint(Sketcher.Constraint("Equal", 27, 29))
sketch2.addConstraint(Sketcher.Constraint("Equal", 29, 31))
sketch2.addConstraint(Sketcher.Constraint("Symmetric", 9, 3, 17, 3, -1, 1))
sketch2.addConstraint(Sketcher.Constraint("Symmetric", 13, 3, 21, 3, -1, 1))
sketch2.addConstraint(Sketcher.Constraint("Symmetric", 1, 3, 25, 3, -1, 1))
sketch2.addConstraint(Sketcher.Constraint("Symmetric", 5, 3, 29, 3, -1, 1))
sketch2.addConstraint(Sketcher.Constraint("Symmetric", 1, 3, 9, 3, -2))
sketch2.addConstraint(Sketcher.Constraint("Symmetric", 5, 3, 13, 3, -2))
sketch2.addConstraint(Sketcher.Constraint("Equal", 30, 0))
sketch2.addConstraint(Sketcher.Constraint("Radius", 1, 1.0))
sketch2.addConstraint(Sketcher.Constraint("DistanceX", 2, 2, 2, 1, 2.15))
sketch2.addConstraint(Sketcher.Constraint("DistanceX", -1, 1, 1, 3, 12.7))
sketch2.addConstraint(Sketcher.Constraint("DistanceY", -1, 1, 1, 3, 12.7))
pocket1 = body.newObject("PartDesign::Pocket", "Pocket")
pocket1.Profile = sketch2
pocket1.Type = "ThroughAll"

doc.recompute()
